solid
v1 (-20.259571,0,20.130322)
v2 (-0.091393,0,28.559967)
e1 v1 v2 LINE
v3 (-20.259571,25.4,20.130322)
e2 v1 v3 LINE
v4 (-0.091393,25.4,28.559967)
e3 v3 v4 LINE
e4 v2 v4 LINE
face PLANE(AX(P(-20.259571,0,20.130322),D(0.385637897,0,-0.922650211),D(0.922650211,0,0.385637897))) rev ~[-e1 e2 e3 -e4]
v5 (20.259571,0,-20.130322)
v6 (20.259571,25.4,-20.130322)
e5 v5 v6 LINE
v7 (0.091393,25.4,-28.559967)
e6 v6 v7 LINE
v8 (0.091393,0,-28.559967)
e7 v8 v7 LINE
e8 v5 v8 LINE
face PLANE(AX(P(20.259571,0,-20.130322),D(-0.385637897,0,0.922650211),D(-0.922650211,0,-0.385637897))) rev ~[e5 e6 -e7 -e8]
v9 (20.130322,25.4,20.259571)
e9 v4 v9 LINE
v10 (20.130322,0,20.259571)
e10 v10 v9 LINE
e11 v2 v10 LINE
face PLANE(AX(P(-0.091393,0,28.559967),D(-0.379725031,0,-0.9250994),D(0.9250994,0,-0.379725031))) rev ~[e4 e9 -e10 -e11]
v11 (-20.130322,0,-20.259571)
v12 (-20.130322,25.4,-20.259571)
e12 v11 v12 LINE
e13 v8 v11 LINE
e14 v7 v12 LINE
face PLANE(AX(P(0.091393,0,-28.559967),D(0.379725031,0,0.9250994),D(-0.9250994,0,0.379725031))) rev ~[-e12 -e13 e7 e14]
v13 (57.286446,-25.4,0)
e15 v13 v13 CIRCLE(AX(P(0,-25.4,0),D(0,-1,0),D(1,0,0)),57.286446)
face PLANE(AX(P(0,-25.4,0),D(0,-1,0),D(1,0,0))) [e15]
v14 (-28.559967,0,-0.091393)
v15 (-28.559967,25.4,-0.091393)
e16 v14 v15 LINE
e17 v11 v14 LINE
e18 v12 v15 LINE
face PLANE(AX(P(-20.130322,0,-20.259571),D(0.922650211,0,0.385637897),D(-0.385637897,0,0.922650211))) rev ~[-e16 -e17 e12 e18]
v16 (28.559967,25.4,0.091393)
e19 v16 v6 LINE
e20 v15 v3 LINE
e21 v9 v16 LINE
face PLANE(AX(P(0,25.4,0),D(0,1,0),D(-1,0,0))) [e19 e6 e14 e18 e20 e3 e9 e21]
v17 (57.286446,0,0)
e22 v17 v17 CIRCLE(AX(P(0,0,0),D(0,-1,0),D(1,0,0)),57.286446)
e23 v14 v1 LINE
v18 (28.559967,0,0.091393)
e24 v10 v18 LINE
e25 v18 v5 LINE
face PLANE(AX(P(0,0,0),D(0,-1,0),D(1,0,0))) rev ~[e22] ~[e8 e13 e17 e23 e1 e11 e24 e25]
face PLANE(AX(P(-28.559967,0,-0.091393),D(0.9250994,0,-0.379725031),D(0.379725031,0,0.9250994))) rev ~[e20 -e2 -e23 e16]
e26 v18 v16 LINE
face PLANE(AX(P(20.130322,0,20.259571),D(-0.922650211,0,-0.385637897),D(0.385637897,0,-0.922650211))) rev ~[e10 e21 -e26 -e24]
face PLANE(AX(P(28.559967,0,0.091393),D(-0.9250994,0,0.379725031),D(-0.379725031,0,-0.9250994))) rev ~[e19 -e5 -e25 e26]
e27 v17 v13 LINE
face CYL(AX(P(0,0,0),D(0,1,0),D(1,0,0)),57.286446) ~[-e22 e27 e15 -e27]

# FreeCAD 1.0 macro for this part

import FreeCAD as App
import Part
import Sketcher
Q = App.Units.Quantity


def add_polygon(sketch, points):
    """Adds a closed chain of lines whose ends are joined by coincident constraints."""
    first, n = sketch.GeometryCount, len(points)
    for a, b in zip(points, points[1:] + points[:1]):
        sketch.addGeometry(Part.LineSegment(App.Vector(*a, 0), App.Vector(*b, 0)), False)
    for i in range(n):
        sketch.addConstraint(Sketcher.Constraint("Coincident", first + i, 2, first + (i + 1) % n, 1))

doc = App.newDocument("Part")
body = doc.addObject("PartDesign::Body", "Body")

sketch1 = body.newObject("Sketcher::SketchObject", "Sketch")
sketch1.AttachmentSupport = (doc.getObject("XZ_Plane"), [""])
sketch1.MapMode = "FlatFace"
sketch1.addGeometry(Part.Circle(App.Vector(0, 0, 0), App.Vector(0, 0, 1), 57), False)
sketch1.addConstraint(Sketcher.Constraint("Coincident", 0, 3, -1, 1))
sketch1.addConstraint(Sketcher.Constraint("Diameter", 0, 114.572892))
pad1 = body.newObject("PartDesign::Pad", "Pad")
pad1.Profile = sketch1
pad1.Length = Q("1 in")

sketch2 = body.newObject("Sketcher::SketchObject", "Sketch001")
sketch2.AttachmentSupport = (doc.getObject("XZ_Plane"), [""])
sketch2.MapMode = "FlatFace"
add_polygon(sketch2, [(0, 29), (20, 20), (29, 0), (20, -20), (0, -29), (-20, -20), (-29, 0), (-20, 20)])
sketch2.addConstraint(Sketcher.Constraint("Symmetric", 0, 2, 4, 2, -1, 1))
sketch2.addConstraint(Sketcher.Constraint("Symmetric", 1, 2, 5, 2, -1, 1))
sketch2.addConstraint(Sketcher.Constraint("Symmetric", 2, 2, 6, 2, -1, 1))
sketch2.addConstraint(Sketcher.Constraint("Symmetric", 3, 2, 7, 2, -1, 1))
sketch2.addConstraint(Sketcher.Constraint("Perpendicular", 0, 2))
sketch2.addConstraint(Sketcher.Constraint("Perpendicular", 1, 3))
sketch2.addConstraint(Sketcher.Constraint("Equal", 0, 1))
sketch2.addConstraint(Sketcher.Constraint("Equal", 1, 2))
sketch2.addConstraint(Sketcher.Constraint("Equal", 2, 3))
sketch2.addConstraint(Sketcher.Constraint("DistanceX", -1, 1, 0, 2, 20.130322))
sketch2.addConstraint(Sketcher.Constraint("DistanceY", -1, 1, 0, 2, 20.259571))
sketch2.addConstraint(Sketcher.Constraint("DistanceY", 3, 2, 1, 2, 28.65136))
pad2 = body.newObject("PartDesign::Pad", "Pad001")
pad2.Profile = sketch2
pad2.Length = Q("1 in")
pad2.Reversed = True

doc.recompute()
